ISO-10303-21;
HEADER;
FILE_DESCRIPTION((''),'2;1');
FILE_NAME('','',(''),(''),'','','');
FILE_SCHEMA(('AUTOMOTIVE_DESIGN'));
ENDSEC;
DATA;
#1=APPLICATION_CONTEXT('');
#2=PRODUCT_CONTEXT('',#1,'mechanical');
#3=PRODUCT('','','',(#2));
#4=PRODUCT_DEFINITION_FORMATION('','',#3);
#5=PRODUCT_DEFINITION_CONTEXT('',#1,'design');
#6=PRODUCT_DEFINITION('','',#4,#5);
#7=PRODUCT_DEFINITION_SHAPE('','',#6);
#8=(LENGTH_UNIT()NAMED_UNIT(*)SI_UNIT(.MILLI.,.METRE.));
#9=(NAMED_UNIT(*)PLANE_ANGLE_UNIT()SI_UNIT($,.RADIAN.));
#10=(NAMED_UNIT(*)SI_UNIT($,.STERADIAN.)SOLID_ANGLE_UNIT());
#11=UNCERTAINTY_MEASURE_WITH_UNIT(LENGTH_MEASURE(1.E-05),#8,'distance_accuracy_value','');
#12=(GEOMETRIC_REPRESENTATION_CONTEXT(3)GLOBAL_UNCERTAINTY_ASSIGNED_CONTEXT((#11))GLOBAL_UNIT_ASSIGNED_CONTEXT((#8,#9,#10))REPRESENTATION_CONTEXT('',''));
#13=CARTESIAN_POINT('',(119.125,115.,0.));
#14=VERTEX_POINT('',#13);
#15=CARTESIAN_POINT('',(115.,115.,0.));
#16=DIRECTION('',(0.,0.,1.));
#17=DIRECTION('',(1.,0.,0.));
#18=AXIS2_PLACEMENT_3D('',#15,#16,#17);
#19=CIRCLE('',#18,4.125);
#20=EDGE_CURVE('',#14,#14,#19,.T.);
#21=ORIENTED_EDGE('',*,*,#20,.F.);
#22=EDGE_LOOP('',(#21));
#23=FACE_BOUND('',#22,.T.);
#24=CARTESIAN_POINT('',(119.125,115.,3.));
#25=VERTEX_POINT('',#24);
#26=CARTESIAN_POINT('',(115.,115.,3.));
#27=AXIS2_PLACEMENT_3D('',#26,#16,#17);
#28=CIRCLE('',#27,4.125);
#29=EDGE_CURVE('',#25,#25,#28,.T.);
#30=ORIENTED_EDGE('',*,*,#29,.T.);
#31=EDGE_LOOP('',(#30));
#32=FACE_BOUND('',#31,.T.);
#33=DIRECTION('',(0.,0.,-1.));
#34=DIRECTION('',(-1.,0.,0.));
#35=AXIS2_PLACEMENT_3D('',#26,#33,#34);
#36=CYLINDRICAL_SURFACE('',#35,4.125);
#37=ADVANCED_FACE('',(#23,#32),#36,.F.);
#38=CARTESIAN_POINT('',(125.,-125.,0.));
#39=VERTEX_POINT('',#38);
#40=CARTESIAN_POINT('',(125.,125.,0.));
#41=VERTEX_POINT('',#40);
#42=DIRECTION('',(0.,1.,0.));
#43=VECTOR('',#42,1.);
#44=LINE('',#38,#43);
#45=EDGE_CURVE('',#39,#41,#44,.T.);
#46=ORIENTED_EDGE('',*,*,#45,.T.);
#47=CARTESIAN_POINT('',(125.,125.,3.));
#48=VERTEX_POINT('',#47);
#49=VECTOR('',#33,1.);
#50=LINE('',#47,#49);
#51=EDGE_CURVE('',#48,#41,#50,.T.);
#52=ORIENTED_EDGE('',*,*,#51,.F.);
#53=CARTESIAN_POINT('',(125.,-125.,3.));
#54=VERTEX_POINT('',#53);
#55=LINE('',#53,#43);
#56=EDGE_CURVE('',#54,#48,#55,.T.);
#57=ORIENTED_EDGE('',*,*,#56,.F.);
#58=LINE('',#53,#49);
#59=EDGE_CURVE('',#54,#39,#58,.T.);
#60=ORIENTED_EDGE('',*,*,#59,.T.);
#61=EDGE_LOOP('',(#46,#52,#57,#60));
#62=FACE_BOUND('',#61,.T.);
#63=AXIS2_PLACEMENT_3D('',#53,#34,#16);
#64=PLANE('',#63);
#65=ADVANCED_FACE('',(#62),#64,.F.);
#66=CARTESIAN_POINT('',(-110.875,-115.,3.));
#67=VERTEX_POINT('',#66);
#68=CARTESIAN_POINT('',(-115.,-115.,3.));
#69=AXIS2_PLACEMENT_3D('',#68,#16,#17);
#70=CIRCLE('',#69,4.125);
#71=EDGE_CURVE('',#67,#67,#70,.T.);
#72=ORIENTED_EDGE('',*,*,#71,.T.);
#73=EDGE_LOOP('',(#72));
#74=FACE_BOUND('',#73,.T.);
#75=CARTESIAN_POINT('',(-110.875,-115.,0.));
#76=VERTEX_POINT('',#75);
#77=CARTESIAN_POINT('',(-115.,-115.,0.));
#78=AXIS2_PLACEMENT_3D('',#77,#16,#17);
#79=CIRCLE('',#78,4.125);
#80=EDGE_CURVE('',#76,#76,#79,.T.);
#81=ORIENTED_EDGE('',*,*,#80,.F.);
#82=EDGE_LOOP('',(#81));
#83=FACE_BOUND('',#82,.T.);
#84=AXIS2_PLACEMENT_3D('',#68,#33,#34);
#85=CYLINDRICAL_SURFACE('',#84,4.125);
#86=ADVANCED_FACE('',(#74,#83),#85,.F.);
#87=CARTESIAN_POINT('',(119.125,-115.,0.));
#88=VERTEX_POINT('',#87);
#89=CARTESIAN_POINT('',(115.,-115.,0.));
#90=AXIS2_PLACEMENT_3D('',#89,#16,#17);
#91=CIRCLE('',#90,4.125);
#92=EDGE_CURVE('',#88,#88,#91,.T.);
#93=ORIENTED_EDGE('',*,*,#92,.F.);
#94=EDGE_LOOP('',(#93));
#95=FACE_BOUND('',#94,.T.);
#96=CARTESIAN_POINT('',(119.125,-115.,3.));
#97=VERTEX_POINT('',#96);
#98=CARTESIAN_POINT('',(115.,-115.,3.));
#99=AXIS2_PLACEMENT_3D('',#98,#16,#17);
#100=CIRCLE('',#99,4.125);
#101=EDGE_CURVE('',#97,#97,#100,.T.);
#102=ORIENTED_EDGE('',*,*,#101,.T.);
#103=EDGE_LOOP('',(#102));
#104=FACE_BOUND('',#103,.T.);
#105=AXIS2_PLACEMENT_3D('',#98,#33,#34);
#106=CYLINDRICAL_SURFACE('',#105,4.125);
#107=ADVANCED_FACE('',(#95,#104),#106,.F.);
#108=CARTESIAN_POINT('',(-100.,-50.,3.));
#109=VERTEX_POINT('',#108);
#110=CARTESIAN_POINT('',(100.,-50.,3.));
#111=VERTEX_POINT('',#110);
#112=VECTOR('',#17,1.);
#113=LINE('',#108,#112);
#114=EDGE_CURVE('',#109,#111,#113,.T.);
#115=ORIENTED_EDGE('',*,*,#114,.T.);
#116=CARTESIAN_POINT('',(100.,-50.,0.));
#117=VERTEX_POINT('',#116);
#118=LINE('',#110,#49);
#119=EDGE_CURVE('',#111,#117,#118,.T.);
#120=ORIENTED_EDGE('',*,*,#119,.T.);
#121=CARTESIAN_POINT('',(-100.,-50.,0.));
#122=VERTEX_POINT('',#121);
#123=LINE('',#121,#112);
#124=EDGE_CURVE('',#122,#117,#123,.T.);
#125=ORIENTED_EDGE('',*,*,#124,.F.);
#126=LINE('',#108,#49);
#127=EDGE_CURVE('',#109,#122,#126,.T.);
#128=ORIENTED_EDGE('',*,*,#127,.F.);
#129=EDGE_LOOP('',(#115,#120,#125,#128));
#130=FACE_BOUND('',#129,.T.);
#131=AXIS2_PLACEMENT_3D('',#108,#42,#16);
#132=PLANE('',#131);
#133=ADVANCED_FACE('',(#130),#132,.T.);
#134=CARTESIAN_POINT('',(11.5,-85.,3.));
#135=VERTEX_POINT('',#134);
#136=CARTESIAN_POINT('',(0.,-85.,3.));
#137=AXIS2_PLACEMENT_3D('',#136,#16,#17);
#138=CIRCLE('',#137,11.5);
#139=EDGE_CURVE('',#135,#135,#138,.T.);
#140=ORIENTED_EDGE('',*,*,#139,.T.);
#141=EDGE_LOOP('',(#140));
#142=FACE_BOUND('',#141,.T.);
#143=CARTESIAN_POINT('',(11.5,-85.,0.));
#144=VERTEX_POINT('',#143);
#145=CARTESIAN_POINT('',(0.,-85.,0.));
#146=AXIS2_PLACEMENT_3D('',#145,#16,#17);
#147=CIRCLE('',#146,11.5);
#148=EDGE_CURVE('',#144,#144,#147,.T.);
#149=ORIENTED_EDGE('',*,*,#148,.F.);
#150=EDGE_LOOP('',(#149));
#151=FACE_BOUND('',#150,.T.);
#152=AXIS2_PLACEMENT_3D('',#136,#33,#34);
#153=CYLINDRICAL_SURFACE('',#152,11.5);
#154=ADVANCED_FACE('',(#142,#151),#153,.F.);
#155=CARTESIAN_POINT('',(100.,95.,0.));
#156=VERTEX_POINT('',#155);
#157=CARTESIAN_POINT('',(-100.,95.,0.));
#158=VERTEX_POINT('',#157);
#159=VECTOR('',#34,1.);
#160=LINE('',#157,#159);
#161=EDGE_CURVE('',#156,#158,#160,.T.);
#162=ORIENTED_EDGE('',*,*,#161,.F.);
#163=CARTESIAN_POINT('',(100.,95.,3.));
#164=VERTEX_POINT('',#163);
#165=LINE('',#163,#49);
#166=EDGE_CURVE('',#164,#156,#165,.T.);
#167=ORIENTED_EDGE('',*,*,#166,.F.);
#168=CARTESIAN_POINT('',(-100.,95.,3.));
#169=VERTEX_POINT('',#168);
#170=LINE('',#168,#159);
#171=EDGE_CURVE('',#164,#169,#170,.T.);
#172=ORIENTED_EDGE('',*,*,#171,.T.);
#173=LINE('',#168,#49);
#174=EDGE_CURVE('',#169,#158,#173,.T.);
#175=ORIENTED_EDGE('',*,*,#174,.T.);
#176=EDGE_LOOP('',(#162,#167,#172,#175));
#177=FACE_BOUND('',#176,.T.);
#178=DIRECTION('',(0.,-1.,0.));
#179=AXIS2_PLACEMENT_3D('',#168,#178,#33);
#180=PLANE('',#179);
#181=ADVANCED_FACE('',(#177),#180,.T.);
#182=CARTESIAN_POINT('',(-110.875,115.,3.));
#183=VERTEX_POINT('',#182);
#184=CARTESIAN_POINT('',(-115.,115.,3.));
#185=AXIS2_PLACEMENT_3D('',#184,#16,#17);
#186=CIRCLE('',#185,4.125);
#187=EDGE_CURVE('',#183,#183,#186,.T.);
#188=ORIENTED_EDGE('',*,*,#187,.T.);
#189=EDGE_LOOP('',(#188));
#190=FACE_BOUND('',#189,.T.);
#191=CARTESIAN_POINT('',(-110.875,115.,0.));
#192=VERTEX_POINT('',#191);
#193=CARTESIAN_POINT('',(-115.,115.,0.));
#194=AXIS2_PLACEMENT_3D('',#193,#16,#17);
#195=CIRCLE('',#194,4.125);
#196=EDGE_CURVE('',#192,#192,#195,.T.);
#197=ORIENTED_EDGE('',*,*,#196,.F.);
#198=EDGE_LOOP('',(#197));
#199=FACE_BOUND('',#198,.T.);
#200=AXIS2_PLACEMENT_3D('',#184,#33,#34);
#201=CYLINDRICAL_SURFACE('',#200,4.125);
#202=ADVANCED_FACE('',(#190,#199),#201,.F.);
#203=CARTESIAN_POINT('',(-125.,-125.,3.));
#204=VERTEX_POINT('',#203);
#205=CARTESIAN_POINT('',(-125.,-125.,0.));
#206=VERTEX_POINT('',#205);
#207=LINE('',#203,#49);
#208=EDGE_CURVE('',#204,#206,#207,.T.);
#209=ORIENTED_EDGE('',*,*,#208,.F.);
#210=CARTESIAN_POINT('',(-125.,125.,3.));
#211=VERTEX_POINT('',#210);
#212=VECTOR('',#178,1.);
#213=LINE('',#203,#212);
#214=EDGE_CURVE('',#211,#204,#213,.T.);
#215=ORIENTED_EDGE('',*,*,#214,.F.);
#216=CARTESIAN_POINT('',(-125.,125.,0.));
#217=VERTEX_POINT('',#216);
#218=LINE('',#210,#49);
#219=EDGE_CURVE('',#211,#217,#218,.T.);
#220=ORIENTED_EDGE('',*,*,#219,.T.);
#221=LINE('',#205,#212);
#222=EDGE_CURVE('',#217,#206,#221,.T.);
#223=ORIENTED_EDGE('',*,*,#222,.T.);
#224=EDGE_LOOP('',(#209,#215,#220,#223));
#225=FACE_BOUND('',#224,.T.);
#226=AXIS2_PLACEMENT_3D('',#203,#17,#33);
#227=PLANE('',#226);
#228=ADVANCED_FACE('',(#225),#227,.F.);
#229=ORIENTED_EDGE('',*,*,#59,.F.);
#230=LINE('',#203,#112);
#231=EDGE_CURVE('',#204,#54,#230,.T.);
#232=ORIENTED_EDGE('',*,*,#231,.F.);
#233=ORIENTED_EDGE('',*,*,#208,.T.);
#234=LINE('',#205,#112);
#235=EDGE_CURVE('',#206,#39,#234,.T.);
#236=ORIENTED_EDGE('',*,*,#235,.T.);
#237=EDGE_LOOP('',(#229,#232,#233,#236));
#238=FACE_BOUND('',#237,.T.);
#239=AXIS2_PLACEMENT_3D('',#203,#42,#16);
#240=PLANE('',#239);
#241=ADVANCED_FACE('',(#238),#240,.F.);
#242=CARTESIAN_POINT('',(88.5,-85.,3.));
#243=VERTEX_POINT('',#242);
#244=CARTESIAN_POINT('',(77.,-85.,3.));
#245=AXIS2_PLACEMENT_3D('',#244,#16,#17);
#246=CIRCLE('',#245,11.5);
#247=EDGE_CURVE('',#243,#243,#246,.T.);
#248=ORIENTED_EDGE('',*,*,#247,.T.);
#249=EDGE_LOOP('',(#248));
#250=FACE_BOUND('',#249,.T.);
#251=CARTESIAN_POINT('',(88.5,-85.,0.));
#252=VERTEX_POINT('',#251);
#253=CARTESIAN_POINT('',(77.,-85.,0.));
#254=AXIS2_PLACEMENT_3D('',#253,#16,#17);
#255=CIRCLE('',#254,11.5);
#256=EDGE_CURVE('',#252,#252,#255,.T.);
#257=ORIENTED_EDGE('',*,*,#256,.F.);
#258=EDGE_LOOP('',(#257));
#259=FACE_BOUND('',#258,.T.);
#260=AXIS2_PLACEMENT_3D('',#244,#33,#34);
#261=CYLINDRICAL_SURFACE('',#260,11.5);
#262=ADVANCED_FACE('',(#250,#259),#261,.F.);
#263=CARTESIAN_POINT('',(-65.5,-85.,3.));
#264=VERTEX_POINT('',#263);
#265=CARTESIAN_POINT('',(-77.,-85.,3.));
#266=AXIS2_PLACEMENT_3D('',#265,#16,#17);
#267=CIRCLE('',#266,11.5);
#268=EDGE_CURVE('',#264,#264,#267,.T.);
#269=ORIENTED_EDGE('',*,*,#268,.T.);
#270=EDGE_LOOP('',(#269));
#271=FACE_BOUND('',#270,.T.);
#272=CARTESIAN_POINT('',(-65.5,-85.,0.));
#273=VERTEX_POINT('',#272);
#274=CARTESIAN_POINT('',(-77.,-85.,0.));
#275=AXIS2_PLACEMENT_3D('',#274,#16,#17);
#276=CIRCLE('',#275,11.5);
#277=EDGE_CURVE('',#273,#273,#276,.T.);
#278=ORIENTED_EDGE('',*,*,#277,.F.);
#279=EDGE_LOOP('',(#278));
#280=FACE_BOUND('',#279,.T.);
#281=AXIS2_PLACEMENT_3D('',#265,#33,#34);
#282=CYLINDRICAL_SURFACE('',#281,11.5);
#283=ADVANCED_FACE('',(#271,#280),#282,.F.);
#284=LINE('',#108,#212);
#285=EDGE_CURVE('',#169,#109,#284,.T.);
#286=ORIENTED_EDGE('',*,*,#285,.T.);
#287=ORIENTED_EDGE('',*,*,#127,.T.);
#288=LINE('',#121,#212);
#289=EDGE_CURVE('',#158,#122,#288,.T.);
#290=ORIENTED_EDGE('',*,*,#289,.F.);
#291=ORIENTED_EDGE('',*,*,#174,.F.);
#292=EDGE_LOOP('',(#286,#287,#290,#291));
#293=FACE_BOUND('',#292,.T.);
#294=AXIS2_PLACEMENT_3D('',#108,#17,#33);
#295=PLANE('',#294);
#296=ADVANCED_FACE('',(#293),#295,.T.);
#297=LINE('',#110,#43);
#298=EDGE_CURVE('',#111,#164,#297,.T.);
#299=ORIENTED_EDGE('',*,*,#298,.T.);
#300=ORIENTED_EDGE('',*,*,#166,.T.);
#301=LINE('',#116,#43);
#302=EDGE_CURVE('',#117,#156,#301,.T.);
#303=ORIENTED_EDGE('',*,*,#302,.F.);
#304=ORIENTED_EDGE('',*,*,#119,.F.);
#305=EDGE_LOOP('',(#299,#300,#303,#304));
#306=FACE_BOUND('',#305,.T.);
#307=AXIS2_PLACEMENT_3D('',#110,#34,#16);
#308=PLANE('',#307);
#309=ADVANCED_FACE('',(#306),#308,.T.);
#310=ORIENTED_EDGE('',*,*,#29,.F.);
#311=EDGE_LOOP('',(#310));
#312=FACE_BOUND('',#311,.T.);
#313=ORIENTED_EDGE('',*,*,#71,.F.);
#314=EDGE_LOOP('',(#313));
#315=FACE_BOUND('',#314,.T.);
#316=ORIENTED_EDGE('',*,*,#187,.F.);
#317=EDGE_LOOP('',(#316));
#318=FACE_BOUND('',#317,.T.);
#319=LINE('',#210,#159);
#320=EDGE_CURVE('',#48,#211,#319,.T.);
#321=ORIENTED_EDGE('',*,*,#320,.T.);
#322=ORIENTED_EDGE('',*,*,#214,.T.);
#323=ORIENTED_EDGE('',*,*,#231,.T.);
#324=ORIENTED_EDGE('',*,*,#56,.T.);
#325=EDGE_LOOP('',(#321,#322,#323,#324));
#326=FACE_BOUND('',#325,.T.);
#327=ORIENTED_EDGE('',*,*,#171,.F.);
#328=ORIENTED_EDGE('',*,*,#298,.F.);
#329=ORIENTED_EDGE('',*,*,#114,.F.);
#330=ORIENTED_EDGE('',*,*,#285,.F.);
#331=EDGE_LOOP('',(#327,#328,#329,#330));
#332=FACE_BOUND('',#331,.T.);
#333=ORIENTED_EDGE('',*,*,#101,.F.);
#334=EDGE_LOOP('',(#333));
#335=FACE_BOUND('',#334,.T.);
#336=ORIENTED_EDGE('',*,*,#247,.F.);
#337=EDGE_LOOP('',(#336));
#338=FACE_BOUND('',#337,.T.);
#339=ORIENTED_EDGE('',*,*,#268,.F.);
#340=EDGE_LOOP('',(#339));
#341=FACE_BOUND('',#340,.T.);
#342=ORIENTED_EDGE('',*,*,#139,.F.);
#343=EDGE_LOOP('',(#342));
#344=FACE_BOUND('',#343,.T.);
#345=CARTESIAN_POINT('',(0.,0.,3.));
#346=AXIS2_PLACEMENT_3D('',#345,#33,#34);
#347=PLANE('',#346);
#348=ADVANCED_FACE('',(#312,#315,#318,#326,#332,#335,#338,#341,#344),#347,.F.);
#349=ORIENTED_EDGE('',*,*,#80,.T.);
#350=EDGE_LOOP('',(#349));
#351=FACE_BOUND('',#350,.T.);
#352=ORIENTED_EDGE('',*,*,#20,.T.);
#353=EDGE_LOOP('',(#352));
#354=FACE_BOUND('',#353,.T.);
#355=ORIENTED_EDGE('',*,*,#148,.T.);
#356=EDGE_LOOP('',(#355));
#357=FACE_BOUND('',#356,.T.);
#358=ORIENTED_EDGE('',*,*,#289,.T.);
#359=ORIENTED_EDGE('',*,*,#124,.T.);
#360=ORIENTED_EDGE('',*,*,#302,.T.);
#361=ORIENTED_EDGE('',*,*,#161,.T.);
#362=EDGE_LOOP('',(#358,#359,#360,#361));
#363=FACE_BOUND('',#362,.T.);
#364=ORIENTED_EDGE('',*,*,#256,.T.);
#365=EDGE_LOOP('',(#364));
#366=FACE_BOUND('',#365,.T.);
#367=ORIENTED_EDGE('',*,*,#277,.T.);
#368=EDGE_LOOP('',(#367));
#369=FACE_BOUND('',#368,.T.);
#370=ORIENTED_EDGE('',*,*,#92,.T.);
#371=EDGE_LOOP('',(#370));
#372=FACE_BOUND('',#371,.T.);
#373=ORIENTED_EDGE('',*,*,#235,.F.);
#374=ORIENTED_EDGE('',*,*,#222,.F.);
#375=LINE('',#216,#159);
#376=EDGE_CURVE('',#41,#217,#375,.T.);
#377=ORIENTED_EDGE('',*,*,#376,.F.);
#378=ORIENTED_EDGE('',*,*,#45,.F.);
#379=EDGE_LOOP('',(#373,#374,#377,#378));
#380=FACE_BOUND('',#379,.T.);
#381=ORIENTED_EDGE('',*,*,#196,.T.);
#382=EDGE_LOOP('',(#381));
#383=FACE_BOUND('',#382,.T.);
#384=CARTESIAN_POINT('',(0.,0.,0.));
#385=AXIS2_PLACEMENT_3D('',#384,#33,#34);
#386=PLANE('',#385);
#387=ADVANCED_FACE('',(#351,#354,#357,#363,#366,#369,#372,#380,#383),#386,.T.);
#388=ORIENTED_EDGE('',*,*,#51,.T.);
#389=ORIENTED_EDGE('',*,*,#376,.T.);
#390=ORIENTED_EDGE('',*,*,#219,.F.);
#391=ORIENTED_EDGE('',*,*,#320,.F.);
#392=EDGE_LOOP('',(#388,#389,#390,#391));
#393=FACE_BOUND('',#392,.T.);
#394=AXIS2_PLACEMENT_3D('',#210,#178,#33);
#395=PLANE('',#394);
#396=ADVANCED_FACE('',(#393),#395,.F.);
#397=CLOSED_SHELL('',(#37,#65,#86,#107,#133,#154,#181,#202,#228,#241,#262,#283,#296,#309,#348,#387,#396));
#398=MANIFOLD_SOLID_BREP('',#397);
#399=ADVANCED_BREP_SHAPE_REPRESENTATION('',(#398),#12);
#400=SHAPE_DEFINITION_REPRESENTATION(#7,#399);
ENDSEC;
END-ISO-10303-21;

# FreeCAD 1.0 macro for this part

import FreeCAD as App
import Part
import Sketcher
Q = App.Units.Quantity


def add_polygon(sketch, points):
    """Adds a closed chain of lines whose ends are joined by coincident constraints."""
    first, n = sketch.GeometryCount, len(points)
    for a, b in zip(points, points[1:] + points[:1]):
        sketch.addGeometry(Part.LineSegment(App.Vector(*a, 0), App.Vector(*b, 0)), False)
    for i in range(n):
        sketch.addConstraint(Sketcher.Constraint("Coincident", first + i, 2, first + (i + 1) % n, 1))

doc = App.newDocument("Part")
params = doc.addObject("Spreadsheet::Sheet", "Params")
for row, (alias, value) in enumerate([
    ("sketch1_diameter", "23 mm"),
    ("sketch1_diameter2", "8.25 mm"),
    ("sketch1_width", "250 mm"),
    ("sketch1_width2", "200 mm"),
    ("sketch1_height", "145 mm"),
    ("pad1_length", "3 mm"),
], start=1):
    params.set(f"A{row}", alias)
    params.set(f"B{row}", "=" + value)
    params.setAlias(f"B{row}", alias)

body = doc.addObject("PartDesign::Body", "Body")

sketch1 = body.newObject("Sketcher::SketchObject", "Sketch")
sketch1.AttachmentSupport = (doc.getObject("XY_Plane"), [""])
sketch1.MapMode = "FlatFace"
add_polygon(sketch1, [(-125, 125), (-125, -125), (125, -125), (125, 125)])
sketch1.addGeometry(Part.Circle(App.Vector(-115, -115, 0), App.Vector(0, 0, 1), 4.1), False)
sketch1.addGeometry(Part.Circle(App.Vector(-77, -85, 0), App.Vector(0, 0, 1), 11.5), False)
sketch1.addGeometry(Part.Circle(App.Vector(0, -85, 0), App.Vector(0, 0, 1), 11.5), False)
sketch1.addGeometry(Part.Circle(App.Vector(115, -115, 0), App.Vector(0, 0, 1), 4.1), False)
sketch1.addGeometry(Part.Circle(App.Vector(77, -85, 0), App.Vector(0, 0, 1), 11.5), False)
sketch1.addGeometry(Part.Circle(App.Vector(-115, 115, 0), App.Vector(0, 0, 1), 4.1), False)
add_polygon(sketch1, [(100, -50), (-100, -50), (-100, 95), (100, 95)])
sketch1.addGeometry(Part.Circle(App.Vector(115, 115, 0), App.Vector(0, 0, 1), 4.1), False)
sketch1.addConstraint(Sketcher.Constraint("Vertical", 0))
sketch1.addConstraint(Sketcher.Constraint("Horizontal", 1))
sketch1.addConstraint(Sketcher.Constraint("Vertical", 2))
sketch1.addConstraint(Sketcher.Constraint("Horizontal", 3))
sketch1.addConstraint(Sketcher.Constraint("Horizontal", 10))
sketch1.addConstraint(Sketcher.Constraint("Vertical", 11))
sketch1.addConstraint(Sketcher.Constraint("Horizontal", 12))
sketch1.addConstraint(Sketcher.Constraint("Vertical", 13))
sketch1.addConstraint(Sketcher.Constraint("Equal", 5, 6))
sketch1.addConstraint(Sketcher.Constraint("Equal", 4, 7))
sketch1.addConstraint(Sketcher.Constraint("Equal", 6, 8))
sketch1.addConstraint(Sketcher.Constraint("Equal", 7, 9))
sketch1.addConstraint(Sketcher.Constraint("Equal", 9, 14))
sketch1.addConstraint(Sketcher.Constraint("Symmetric", 7, 3, 9, 3, -1, 1))
sketch1.addConstraint(Sketcher.Constraint("Symmetric", 4, 3, 14, 3, -1, 1))
sketch1.addConstraint(Sketcher.Constraint("Symmetric", 0, 2, 2, 2, -1, 1))
sketch1.addConstraint(Sketcher.Constraint("Symmetric", 4, 3, 7, 3, -2))
sketch1.addConstraint(Sketcher.Constraint("Symmetric", 5, 3, 8, 3, -2))
sketch1.addConstraint(Sketcher.Constraint("PointOnObject", 6, 3, -2))
sketch1.addConstraint(Sketcher.Constraint("Horizontal", 5, 3, 6, 3))
sketch1.addConstraint(Sketcher.Constraint("Equal", 3, 0))
sketch1.addConstraint(Sketcher.Constraint("Diameter", 5, Q("23 mm")))
sketch1.addConstraint(Sketcher.Constraint("Diameter", 4, Q("8.25 mm")))
sketch1.addConstraint(Sketcher.Constraint("DistanceX", 1, 1, 1, 2, Q("250 mm")))
sketch1.addConstraint(Sketcher.Constraint("DistanceX", 10, 2, 10, 1, Q("200 mm")))
sketch1.addConstraint(Sketcher.Constraint("DistanceY", 11, 1, 11, 2, Q("145 mm")))
sketch1.addConstraint(Sketcher.Constraint("DistanceX", 4, 3, -1, 1, Q("115 mm")))
sketch1.addConstraint(Sketcher.Constraint("DistanceY", 4, 3, -1, 1, Q("115 mm")))
sketch1.addConstraint(Sketcher.Constraint("DistanceX", 5, 3, -1, 1, Q("77 mm")))
sketch1.addConstraint(Sketcher.Constraint("DistanceY", 5, 3, -1, 1, Q("85 mm")))
sketch1.addConstraint(Sketcher.Constraint("DistanceX", 10, 2, -1, 1, Q("100 mm")))
sketch1.addConstraint(Sketcher.Constraint("DistanceY", 10, 2, -1, 1, Q("50 mm")))
sketch1.setExpression("Constraints[29]", "Params.sketch1_diameter")
sketch1.setExpression("Constraints[30]", "Params.sketch1_diameter2")
sketch1.setExpression("Constraints[31]", "Params.sketch1_width")
sketch1.setExpression("Constraints[32]", "Params.sketch1_width2")
sketch1.setExpression("Constraints[33]", "Params.sketch1_height")
pad1 = body.newObject("PartDesign::Pad", "Pad")
pad1.Profile = sketch1
pad1.setExpression("Length", "Params.pad1_length")

doc.recompute()
